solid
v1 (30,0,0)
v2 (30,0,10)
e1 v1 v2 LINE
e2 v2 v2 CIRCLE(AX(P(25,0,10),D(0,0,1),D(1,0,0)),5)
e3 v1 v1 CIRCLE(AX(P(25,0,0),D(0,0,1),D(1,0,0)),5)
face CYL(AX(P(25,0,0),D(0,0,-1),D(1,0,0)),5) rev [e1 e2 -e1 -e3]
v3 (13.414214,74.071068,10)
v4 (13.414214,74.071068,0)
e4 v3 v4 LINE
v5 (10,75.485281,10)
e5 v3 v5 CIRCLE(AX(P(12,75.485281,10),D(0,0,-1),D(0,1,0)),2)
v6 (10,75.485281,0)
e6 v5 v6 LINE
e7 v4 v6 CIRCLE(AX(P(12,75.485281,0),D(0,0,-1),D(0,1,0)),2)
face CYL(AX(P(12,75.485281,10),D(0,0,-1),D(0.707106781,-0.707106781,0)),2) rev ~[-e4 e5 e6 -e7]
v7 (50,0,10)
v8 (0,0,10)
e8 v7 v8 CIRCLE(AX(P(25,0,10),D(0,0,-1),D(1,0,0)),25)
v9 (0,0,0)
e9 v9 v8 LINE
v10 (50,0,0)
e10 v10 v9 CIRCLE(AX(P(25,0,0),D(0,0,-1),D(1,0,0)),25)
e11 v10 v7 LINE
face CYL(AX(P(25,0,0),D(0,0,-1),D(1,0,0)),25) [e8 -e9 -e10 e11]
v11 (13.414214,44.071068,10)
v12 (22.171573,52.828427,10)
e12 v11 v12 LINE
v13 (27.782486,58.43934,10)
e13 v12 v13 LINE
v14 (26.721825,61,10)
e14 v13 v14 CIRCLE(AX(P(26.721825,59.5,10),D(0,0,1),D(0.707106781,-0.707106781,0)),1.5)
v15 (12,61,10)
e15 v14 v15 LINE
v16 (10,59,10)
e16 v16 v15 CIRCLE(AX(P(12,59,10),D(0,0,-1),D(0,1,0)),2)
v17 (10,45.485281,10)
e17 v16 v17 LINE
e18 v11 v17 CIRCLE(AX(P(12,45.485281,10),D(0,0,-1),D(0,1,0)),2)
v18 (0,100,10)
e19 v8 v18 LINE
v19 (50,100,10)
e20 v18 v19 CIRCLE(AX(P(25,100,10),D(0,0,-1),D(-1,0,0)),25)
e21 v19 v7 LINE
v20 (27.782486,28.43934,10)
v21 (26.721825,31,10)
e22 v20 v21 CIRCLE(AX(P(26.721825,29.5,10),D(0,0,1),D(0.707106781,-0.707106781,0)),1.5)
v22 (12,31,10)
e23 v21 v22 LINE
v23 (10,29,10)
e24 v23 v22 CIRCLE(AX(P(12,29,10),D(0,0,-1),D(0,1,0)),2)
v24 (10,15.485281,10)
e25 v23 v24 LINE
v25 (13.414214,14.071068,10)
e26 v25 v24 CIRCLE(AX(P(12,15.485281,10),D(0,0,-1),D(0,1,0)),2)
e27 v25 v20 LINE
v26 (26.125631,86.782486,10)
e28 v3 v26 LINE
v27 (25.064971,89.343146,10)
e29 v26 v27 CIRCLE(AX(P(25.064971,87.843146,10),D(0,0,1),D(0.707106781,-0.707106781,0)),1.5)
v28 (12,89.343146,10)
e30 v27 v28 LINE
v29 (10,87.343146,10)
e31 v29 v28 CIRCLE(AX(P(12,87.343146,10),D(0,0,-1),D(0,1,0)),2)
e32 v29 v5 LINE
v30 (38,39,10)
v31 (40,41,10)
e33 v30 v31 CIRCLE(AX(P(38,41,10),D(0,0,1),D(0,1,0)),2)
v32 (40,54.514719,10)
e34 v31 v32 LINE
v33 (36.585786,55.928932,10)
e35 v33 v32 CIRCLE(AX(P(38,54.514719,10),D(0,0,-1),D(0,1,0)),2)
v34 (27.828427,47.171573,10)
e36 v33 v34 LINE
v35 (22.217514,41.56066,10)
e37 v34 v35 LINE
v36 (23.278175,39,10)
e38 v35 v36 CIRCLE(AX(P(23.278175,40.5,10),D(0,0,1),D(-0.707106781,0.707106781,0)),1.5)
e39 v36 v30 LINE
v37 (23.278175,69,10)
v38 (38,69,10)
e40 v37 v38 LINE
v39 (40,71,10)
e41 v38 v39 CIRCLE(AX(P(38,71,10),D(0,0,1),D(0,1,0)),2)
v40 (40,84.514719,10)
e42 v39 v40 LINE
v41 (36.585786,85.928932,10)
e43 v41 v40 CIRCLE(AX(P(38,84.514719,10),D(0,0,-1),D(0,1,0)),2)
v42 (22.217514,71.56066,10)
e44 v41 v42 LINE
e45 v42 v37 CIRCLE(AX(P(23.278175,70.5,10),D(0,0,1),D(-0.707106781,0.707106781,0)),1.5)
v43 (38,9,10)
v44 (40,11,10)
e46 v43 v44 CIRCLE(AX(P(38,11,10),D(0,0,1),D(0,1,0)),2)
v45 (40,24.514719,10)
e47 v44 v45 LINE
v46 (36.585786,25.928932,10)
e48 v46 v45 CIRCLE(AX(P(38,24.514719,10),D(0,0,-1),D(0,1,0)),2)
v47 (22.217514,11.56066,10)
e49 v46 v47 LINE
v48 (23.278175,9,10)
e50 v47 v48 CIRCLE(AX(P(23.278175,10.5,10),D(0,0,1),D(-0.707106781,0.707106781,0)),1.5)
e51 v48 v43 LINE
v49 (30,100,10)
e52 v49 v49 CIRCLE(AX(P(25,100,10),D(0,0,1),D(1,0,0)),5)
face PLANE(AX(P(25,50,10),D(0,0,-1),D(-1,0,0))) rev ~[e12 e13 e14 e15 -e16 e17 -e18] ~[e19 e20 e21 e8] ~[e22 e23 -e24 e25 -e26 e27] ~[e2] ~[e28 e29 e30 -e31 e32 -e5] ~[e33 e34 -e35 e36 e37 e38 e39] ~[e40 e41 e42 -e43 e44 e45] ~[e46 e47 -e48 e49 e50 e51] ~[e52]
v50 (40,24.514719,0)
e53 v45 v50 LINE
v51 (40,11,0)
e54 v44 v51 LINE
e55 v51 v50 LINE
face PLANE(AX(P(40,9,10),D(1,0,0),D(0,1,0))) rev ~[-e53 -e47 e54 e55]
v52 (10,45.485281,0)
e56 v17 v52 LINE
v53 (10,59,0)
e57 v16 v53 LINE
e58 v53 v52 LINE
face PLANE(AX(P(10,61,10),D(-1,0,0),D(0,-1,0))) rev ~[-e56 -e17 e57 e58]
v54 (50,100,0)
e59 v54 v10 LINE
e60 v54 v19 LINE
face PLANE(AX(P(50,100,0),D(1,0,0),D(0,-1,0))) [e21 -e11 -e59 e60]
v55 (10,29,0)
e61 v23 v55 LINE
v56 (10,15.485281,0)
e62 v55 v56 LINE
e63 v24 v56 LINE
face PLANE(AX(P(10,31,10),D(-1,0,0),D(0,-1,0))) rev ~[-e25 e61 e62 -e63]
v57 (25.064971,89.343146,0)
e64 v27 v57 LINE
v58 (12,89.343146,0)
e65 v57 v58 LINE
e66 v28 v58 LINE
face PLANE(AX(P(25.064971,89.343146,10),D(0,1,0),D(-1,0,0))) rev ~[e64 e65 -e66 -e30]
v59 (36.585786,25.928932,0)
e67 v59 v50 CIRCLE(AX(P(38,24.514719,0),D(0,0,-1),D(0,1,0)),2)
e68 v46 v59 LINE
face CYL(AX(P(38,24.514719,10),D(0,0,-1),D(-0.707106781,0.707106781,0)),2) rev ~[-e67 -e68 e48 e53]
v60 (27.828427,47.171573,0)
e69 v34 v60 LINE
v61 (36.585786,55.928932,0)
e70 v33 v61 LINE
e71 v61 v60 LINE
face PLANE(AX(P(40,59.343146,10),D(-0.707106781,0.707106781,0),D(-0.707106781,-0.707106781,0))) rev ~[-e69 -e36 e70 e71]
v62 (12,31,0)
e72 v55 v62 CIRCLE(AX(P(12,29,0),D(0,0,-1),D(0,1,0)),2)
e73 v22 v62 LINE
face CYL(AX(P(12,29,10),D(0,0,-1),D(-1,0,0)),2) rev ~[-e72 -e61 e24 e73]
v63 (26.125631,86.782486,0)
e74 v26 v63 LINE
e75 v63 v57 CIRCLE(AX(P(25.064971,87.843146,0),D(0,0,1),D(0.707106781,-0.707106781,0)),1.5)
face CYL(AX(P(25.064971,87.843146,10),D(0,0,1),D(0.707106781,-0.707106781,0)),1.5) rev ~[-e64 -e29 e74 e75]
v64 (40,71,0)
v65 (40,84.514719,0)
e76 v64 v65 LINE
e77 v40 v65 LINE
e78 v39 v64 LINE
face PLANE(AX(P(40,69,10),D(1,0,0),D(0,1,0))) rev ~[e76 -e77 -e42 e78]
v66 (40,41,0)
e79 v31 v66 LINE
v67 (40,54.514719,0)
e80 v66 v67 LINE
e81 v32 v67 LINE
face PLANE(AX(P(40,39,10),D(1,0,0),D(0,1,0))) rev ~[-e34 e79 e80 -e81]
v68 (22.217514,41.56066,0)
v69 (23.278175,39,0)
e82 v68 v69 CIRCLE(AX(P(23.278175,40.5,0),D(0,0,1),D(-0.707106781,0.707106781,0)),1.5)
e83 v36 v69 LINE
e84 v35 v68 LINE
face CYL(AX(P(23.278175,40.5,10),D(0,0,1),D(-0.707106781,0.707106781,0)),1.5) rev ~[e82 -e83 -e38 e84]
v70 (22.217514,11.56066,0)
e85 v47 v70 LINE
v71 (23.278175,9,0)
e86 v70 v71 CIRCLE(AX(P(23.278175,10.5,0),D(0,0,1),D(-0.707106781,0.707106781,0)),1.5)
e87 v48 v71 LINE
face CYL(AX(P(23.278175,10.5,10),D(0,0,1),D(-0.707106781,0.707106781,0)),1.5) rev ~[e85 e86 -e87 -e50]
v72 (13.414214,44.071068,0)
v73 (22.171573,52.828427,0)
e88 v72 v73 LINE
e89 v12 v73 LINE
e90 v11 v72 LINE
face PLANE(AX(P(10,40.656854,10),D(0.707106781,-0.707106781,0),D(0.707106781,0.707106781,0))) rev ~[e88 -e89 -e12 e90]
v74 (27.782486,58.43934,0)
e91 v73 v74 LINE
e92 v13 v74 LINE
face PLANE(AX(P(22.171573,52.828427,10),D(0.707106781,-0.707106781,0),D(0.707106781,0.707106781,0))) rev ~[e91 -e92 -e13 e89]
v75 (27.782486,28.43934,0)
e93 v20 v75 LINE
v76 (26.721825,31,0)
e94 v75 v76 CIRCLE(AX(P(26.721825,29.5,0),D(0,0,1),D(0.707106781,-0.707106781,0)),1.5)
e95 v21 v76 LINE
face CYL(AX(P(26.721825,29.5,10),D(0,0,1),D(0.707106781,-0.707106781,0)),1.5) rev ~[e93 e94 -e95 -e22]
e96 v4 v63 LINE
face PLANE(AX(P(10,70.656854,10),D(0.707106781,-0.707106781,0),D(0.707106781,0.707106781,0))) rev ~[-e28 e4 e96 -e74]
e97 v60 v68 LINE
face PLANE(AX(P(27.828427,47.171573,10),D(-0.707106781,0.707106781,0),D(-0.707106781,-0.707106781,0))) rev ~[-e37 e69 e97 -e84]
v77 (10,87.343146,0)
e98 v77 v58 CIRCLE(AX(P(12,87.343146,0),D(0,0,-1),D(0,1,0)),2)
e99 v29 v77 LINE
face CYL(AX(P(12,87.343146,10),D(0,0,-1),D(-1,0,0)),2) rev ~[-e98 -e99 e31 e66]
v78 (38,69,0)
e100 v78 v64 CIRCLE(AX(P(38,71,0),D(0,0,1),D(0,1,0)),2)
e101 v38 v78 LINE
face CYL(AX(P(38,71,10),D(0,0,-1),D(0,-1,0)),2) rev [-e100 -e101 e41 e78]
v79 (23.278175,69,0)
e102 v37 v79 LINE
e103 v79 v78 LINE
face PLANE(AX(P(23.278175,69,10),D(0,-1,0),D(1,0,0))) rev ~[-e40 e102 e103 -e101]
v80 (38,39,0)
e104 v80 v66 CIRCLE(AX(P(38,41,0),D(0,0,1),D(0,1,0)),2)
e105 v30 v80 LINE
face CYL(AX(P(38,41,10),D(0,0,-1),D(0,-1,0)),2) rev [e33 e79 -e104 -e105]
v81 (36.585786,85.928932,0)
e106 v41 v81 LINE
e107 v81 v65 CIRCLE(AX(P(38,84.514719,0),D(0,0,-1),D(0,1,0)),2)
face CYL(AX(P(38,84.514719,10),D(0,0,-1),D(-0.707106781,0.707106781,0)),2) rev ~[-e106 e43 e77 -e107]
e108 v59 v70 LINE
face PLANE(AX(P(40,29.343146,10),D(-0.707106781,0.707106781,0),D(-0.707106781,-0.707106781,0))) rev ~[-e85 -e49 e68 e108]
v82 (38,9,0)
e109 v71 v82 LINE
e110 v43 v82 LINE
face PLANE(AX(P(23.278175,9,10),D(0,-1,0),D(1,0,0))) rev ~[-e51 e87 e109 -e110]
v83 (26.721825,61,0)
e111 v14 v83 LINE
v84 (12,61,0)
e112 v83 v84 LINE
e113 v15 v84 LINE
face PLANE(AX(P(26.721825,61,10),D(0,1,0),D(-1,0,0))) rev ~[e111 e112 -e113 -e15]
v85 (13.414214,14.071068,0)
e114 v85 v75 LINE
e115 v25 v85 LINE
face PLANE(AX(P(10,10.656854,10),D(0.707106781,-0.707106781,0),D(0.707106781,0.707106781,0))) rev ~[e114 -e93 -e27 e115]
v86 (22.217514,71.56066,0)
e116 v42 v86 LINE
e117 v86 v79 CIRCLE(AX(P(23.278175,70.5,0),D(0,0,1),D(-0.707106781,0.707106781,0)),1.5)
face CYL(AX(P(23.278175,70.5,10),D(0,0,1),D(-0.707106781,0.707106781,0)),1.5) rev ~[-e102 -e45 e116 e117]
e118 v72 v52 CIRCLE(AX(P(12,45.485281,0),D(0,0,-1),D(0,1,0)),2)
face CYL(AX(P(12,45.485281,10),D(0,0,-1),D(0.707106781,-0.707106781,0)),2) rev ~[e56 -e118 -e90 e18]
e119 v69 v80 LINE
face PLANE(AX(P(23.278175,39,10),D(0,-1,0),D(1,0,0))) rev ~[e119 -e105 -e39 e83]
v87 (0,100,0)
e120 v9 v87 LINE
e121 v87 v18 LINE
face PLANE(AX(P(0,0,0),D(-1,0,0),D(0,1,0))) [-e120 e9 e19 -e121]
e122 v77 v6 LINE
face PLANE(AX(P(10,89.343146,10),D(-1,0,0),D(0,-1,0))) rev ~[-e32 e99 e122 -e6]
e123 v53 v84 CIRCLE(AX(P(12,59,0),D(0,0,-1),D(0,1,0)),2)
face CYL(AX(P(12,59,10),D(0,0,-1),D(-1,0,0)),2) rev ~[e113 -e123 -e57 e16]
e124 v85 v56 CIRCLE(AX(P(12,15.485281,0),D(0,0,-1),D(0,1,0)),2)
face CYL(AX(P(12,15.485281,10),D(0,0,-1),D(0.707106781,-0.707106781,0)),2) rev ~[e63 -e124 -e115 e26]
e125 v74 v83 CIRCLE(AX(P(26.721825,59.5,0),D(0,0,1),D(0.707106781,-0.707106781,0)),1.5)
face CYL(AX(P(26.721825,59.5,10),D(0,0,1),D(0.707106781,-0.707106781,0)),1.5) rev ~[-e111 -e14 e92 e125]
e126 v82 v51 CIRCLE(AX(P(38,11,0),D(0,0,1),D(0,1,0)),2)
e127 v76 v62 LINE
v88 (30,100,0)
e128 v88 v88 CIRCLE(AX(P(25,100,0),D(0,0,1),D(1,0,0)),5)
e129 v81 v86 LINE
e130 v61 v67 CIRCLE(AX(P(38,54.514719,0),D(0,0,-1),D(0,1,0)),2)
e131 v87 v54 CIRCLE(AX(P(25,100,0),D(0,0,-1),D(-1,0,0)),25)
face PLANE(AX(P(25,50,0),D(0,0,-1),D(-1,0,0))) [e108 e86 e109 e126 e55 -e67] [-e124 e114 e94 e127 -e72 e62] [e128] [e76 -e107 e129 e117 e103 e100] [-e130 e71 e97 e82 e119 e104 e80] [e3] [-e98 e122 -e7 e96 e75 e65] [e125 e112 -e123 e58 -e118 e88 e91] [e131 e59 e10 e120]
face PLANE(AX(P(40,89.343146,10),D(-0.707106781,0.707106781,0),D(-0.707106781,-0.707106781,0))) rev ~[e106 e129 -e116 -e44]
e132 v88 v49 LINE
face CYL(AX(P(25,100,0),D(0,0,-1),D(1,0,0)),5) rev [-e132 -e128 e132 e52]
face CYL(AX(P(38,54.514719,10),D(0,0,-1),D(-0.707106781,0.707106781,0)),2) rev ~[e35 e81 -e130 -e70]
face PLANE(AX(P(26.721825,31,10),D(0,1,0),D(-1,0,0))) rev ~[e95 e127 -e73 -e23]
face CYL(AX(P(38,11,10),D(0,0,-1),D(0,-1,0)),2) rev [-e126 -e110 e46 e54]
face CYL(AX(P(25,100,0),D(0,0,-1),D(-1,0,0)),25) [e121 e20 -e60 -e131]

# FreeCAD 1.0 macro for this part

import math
import FreeCAD as App
import Part
import Sketcher

V = App.Vector
Q = App.Units.Quantity


def edges_at(feature, points):
    """Names of the edges that pass closest to the given points."""
    edges = feature.Shape.Edges
    near = lambda p: min(range(len(edges)), key=lambda i: edges[i].distToShape(Part.Vertex(*p))[0])
    return sorted({f"Edge{near(p) + 1}" for p in points})

doc = App.newDocument("Part")
params = doc.addObject("Spreadsheet::Sheet", "Params")
for row, (alias, value) in enumerate([
    ("sketch1_diameter", "10 mm"),
    ("sketch1_radius", "25 mm"),
    ("sketch1_height", "100 mm"),
    ("pad1_length", "10 mm"),
    ("sketch2_radius", "1.5 mm"),
    ("pocket1_length", "10 mm"),
    ("fillet_radius", "2 mm"),
], start=1):
    params.set(f"A{row}", alias)
    params.set(f"B{row}", "=" + value)
    params.setAlias(f"B{row}", alias)

body = doc.addObject("PartDesign::Body", "Body")

sketch1 = body.newObject("Sketcher::SketchObject", "Sketch")
sketch1.AttachmentSupport = (doc.getObject("XY_Plane"), [""])
sketch1.MapMode = "FlatFace"
sketch1.addGeometry(Part.LineSegment(V(0, 100, 0), V(0, 0, 0)), False)
sketch1.addGeometry(Part.ArcOfCircle(Part.Circle(V(25, 0, 0), V(0, 0, 1), 25), math.radians(180), math.radians(360)), False)
sketch1.addGeometry(Part.LineSegment(V(50, 0, 0), V(50, 100, 0)), False)
sketch1.addGeometry(Part.ArcOfCircle(Part.Circle(V(25, 100, 0), V(0, 0, 1), 25), math.radians(0), math.radians(180)), False)
sketch1.addGeometry(Part.Circle(V(25, 100, 0), V(0, 0, 1), 5), False)
sketch1.addGeometry(Part.Circle(V(25, 0, 0), V(0, 0, 1), 5), False)
sketch1.addConstraint(Sketcher.Constraint("Tangent", 0, 2, 1, 1))
sketch1.addConstraint(Sketcher.Constraint("Tangent", 1, 2, 2, 1))
sketch1.addConstraint(Sketcher.Constraint("Tangent", 2, 2, 3, 1))
sketch1.addConstraint(Sketcher.Constraint("Tangent", 3, 2, 0, 1))
sketch1.addConstraint(Sketcher.Constraint("Vertical", 0))
sketch1.addConstraint(Sketcher.Constraint("Vertical", 2))
sketch1.addConstraint(Sketcher.Constraint("Coincident", 0, 2, -1, 1))
sketch1.addConstraint(Sketcher.Constraint("Coincident", 4, 3, 3, 3))
sketch1.addConstraint(Sketcher.Constraint("Coincident", 5, 3, 1, 3))
sketch1.addConstraint(Sketcher.Constraint("Equal", 4, 5))
sketch1.addConstraint(Sketcher.Constraint("Diameter", 4, 10.0))
sketch1.addConstraint(Sketcher.Constraint("Radius", 1, 25.0))
sketch1.addConstraint(Sketcher.Constraint("DistanceY", 0, 2, 0, 1, 100.0))
sketch1.setExpression("Constraints[10]", "Params.sketch1_diameter")
sketch1.setExpression("Constraints[11]", "Params.sketch1_radius")
sketch1.setExpression("Constraints[12]", "Params.sketch1_height")
pad1 = body.newObject("PartDesign::Pad", "Pad")
pad1.Profile = sketch1
pad1.setExpression("Length", "Params.pad1_length")

sketch2 = body.newObject("Sketcher::SketchObject", "Sketch001")
sketch2.AttachmentSupport = (doc.getObject("XY_Plane"), [""])
sketch2.MapMode = "FlatFace"
sketch2.AttachmentOffset = App.Placement(V(0, 0, 10), App.Rotation())
sketch2.addGeometry(Part.LineSegment(V(25.1, 89.3, 0), V(10, 89.3, 0)), False)
sketch2.addGeometry(Part.LineSegment(V(10, 89.3, 0), V(10, 70.7, 0)), False)
sketch2.addGeometry(Part.LineSegment(V(10, 70.7, 0), V(26.1, 86.8, 0)), False)
sketch2.addGeometry(Part.ArcOfCircle(Part.Circle(V(25.1, 87.8, 0), V(0, 0, 1), 1.5), math.radians(-45), math.radians(90)), False)
sketch2.addGeometry(Part.LineSegment(V(40, 69, 0), V(40, 89.3, 0)), False)
sketch2.addGeometry(Part.LineSegment(V(40, 89.3, 0), V(22.2, 71.6, 0)), False)
sketch2.addGeometry(Part.ArcOfCircle(Part.Circle(V(23.3, 70.5, 0), V(0, 0, 1), 1.5), math.radians(135), math.radians(270)), False)
sketch2.addGeometry(Part.LineSegment(V(23.3, 69, 0), V(40, 69, 0)), False)
sketch2.addGeometry(Part.LineSegment(V(26.7, 61, 0), V(10, 61, 0)), False)
sketch2.addGeometry(Part.LineSegment(V(10, 61, 0), V(10, 40.7, 0)), False)
sketch2.addGeometry(Part.LineSegment(V(10, 40.7, 0), V(22.2, 52.8, 0)), False)
sketch2.addGeometry(Part.LineSegment(V(22.2, 52.8, 0), V(27.8, 58.4, 0)), False)
sketch2.addGeometry(Part.ArcOfCircle(Part.Circle(V(26.7, 59.5, 0), V(0, 0, 1), 1.5), math.radians(-45), math.radians(90)), False)
sketch2.addGeometry(Part.LineSegment(V(40, 39, 0), V(40, 59.3, 0)), False)
sketch2.addGeometry(Part.LineSegment(V(40, 59.3, 0), V(27.8, 47.2, 0)), False)
sketch2.addGeometry(Part.LineSegment(V(27.8, 47.2, 0), V(22.2, 41.6, 0)), False)
sketch2.addGeometry(Part.ArcOfCircle(Part.Circle(V(23.3, 40.5, 0), V(0, 0, 1), 1.5), math.radians(135), math.radians(270)), False)
sketch2.addGeometry(Part.LineSegment(V(23.3, 39, 0), V(40, 39, 0)), False)
sketch2.addGeometry(Part.LineSegment(V(26.7, 31, 0), V(10, 31, 0)), False)
sketch2.addGeometry(Part.LineSegment(V(10, 31, 0), V(10, 10.7, 0)), False)
sketch2.addGeometry(Part.LineSegment(V(10, 10.7, 0), V(27.8, 28.4, 0)), False)
sketch2.addGeometry(Part.ArcOfCircle(Part.Circle(V(26.7, 29.5, 0), V(0, 0, 1), 1.5), math.radians(-45), math.radians(90)), False)
sketch2.addGeometry(Part.LineSegment(V(40, 9, 0), V(40, 29.3, 0)), False)
sketch2.addGeometry(Part.LineSegment(V(40, 29.3, 0), V(22.2, 11.6, 0)), False)
sketch2.addGeometry(Part.ArcOfCircle(Part.Circle(V(23.3, 10.5, 0), V(0, 0, 1), 1.5), math.radians(135), math.radians(270)), False)
sketch2.addGeometry(Part.LineSegment(V(23.3, 9, 0), V(40, 9, 0)), False)
sketch2.addConstraint(Sketcher.Constraint("Coincident", 0, 2, 1, 1))
sketch2.addConstraint(Sketcher.Constraint("Coincident", 1, 2, 2, 1))
sketch2.addConstraint(Sketcher.Constraint("Tangent", 2, 2, 3, 1))
sketch2.addConstraint(Sketcher.Constraint("Tangent", 3, 2, 0, 1))
sketch2.addConstraint(Sketcher.Constraint("Coincident", 4, 2, 5, 1))
sketch2.addConstraint(Sketcher.Constraint("Tangent", 5, 2, 6, 1))
sketch2.addConstraint(Sketcher.Constraint("Tangent", 6, 2, 7, 1))
sketch2.addConstraint(Sketcher.Constraint("Coincident", 7, 2, 4, 1))
sketch2.addConstraint(Sketcher.Constraint("Coincident", 8, 2, 9, 1))
sketch2.addConstraint(Sketcher.Constraint("Coincident", 9, 2, 10, 1))
sketch2.addConstraint(Sketcher.Constraint("Coincident", 10, 2, 11, 1))
sketch2.addConstraint(Sketcher.Constraint("Tangent", 11, 2, 12, 1))
sketch2.addConstraint(Sketcher.Constraint("Tangent", 12, 2, 8, 1))
sketch2.addConstraint(Sketcher.Constraint("Coincident", 13, 2, 14, 1))
sketch2.addConstraint(Sketcher.Constraint("Coincident", 14, 2, 15, 1))
sketch2.addConstraint(Sketcher.Constraint("Tangent", 15, 2, 16, 1))
sketch2.addConstraint(Sketcher.Constraint("Tangent", 16, 2, 17, 1))
sketch2.addConstraint(Sketcher.Constraint("Coincident", 17, 2, 13, 1))
sketch2.addConstraint(Sketcher.Constraint("Coincident", 18, 2, 19, 1))
sketch2.addConstraint(Sketcher.Constraint("Coincident", 19, 2, 20, 1))
sketch2.addConstraint(Sketcher.Constraint("Tangent", 20, 2, 21, 1))
sketch2.addConstraint(Sketcher.Constraint("Tangent", 21, 2, 18, 1))
sketch2.addConstraint(Sketcher.Constraint("Coincident", 22, 2, 23, 1))
sketch2.addConstraint(Sketcher.Constraint("Tangent", 23, 2, 24, 1))
sketch2.addConstraint(Sketcher.Constraint("Tangent", 24, 2, 25, 1))
sketch2.addConstraint(Sketcher.Constraint("Coincident", 25, 2, 22, 1))
sketch2.addConstraint(Sketcher.Constraint("Horizontal", 0))
sketch2.addConstraint(Sketcher.Constraint("Vertical", 1))
sketch2.addConstraint(Sketcher.Constraint("Vertical", 4))
sketch2.addConstraint(Sketcher.Constraint("Horizontal", 7))
sketch2.addConstraint(Sketcher.Constraint("Horizontal", 8))
sketch2.addConstraint(Sketcher.Constraint("Vertical", 9))
sketch2.addConstraint(Sketcher.Constraint("Vertical", 13))
sketch2.addConstraint(Sketcher.Constraint("Horizontal", 17))
sketch2.addConstraint(Sketcher.Constraint("Horizontal", 18))
sketch2.addConstraint(Sketcher.Constraint("Vertical", 19))
sketch2.addConstraint(Sketcher.Constraint("Vertical", 22))
sketch2.addConstraint(Sketcher.Constraint("Horizontal", 25))
sketch2.addConstraint(Sketcher.Constraint("Equal", 3, 6))
sketch2.addConstraint(Sketcher.Constraint("Equal", 6, 12))
sketch2.addConstraint(Sketcher.Constraint("Equal", 12, 16))
sketch2.addConstraint(Sketcher.Constraint("Equal", 16, 21))
sketch2.addConstraint(Sketcher.Constraint("Equal", 21, 24))
sketch2.addConstraint(Sketcher.Constraint("Parallel", 2, 5))
sketch2.addConstraint(Sketcher.Constraint("Parallel", 5, 10))
sketch2.addConstraint(Sketcher.Constraint("Parallel", 10, 11))
sketch2.addConstraint(Sketcher.Constraint("Parallel", 11, 14))
sketch2.addConstraint(Sketcher.Constraint("Parallel", 14, 15))
sketch2.addConstraint(Sketcher.Constraint("Parallel", 15, 20))
sketch2.addConstraint(Sketcher.Constraint("Parallel", 20, 23))
sketch2.addConstraint(Sketcher.Constraint("Horizontal", 3, 2, 4, 2))
sketch2.addConstraint(Sketcher.Constraint("Vertical", 6, 3, 16, 3))
sketch2.addConstraint(Sketcher.Constraint("Vertical", 12, 3, 21, 3))
sketch2.addConstraint(Sketcher.Constraint("Vertical", 16, 3, 24, 3))
sketch2.addConstraint(Sketcher.Constraint("Vertical", 1, 2, 8, 2))
sketch2.addConstraint(Sketcher.Constraint("Vertical", 7, 2, 13, 2))
sketch2.addConstraint(Sketcher.Constraint("Vertical", 9, 2, 18, 2))
sketch2.addConstraint(Sketcher.Constraint("Vertical", 17, 2, 22, 2))
sketch2.addConstraint(Sketcher.Constraint("Equal", 7, 8))
sketch2.addConstraint(Sketcher.Constraint("Equal", 10, 14))
sketch2.addConstraint(Sketcher.Constraint("Radius", 3, 1.5))
sketch2.addConstraint(Sketcher.Constraint("Angle", 2, Q("45 deg")))
sketch2.addConstraint(Sketcher.Constraint("DistanceX", -1, 1, 0, 2, 10.0))
sketch2.addConstraint(Sketcher.Constraint("DistanceX", -1, 1, 4, 2, 40.0))
sketch2.addConstraint(Sketcher.Constraint("DistanceY", -1, 1, 6, 2, 69.0))
sketch2.addConstraint(Sketcher.Constraint("DistanceY", -1, 1, 8, 2, 61.0))
sketch2.addConstraint(Sketcher.Constraint("DistanceY", -1, 1, 16, 2, 39.0))
sketch2.addConstraint(Sketcher.Constraint("DistanceY", -1, 1, 18, 2, 31.0))
sketch2.addConstraint(Sketcher.Constraint("DistanceY", -1, 1, 24, 2, 9.0))
sketch2.addConstraint(Sketcher.Constraint("DistanceY", 9, 2, 1, 2, 30.0))
sketch2.addConstraint(Sketcher.Constraint("DistanceX", 0, 2, 0, 1, 15.064971))
sketch2.addConstraint(Sketcher.Constraint("DistanceX", 10, 2, 16, 3, 1.106602))
sketch2.setExpression("Constraints[60]", "Params.sketch2_radius")
pocket1 = body.newObject("PartDesign::Pocket", "Pocket")
pocket1.Profile = sketch2
pocket1.setExpression("Length", "Params.pocket1_length")
doc.recompute()

fillet = body.newObject("PartDesign::Fillet", "Fillet")
fillet.Base = (pocket1, edges_at(pocket1, [
    (10, 10.657, 5),
    (10, 31, 5),
    (40, 59.343, 5),
    (40, 39, 5),
    (10, 40.657, 5),
    (10, 61, 5),
    (40, 89.343, 5),
    (40, 69, 5),
    (40, 29.343, 5),
    (40, 9, 5),
    (10, 70.657, 5),
    (10, 89.343, 5),
]))
fillet.setExpression("Radius", "Params.fillet_radius")

doc.recompute()
